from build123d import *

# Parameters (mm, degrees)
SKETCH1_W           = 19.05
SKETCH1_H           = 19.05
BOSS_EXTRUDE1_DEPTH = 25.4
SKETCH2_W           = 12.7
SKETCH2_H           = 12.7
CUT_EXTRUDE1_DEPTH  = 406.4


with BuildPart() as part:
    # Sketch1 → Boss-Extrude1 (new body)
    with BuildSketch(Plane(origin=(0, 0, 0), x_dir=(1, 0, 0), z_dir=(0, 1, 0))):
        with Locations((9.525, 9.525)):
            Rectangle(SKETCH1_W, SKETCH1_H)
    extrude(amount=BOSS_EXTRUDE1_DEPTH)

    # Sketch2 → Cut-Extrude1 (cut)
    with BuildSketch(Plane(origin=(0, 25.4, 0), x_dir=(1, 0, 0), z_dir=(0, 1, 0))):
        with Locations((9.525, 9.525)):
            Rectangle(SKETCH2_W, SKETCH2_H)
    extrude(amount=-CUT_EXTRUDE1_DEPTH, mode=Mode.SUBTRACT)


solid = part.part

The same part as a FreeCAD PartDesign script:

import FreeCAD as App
import Part
import Sketcher
from FreeCAD import Vector
Q = App.Units.Quantity


def add_polygon(sketch, points):
    """Adds a closed chain of lines whose ends are joined by coincident constraints."""
    first, n = sketch.GeometryCount, len(points)
    for a, b in zip(points, points[1:] + points[:1]):
        sketch.addGeometry(Part.LineSegment(App.Vector(*a, 0), App.Vector(*b, 0)), False)
    for i in range(n):
        sketch.addConstraint(Sketcher.Constraint("Coincident", first + i, 2, first + (i + 1) % n, 1))

doc = App.newDocument("Part")
body = doc.addObject("PartDesign::Body", "Body")

sketch1 = body.newObject("Sketcher::SketchObject", "Sketch")
sketch1.AttachmentSupport = (doc.getObject("XZ_Plane"), [""])
sketch1.MapMode = "FlatFace"
add_polygon(sketch1, [(0, -19), (0, 0), (19, 0), (19, -19)])
sketch1.addConstraint(Sketcher.Constraint("Vertical", 0))
sketch1.addConstraint(Sketcher.Constraint("Horizontal", 1))
sketch1.addConstraint(Sketcher.Constraint("Vertical", 2))
sketch1.addConstraint(Sketcher.Constraint("Horizontal", 3))
sketch1.addConstraint(Sketcher.Constraint("Coincident", 0, 2, -1, 1))
sketch1.addConstraint(Sketcher.Constraint("Equal", 3, 0))
sketch1.addConstraint(Sketcher.Constraint("DistanceX", 1, 1, 1, 2, Q("0.75 in")))
pad1 = body.newObject("PartDesign::Pad", "Pad")
pad1.Profile = sketch1
pad1.Length = Q("1 in")
pad1.Reversed = True

sketch2 = body.newObject("Sketcher::SketchObject", "Sketch001")
sketch2.AttachmentSupport = (doc.getObject("XZ_Plane"), [""])
sketch2.MapMode = "FlatFace"
sketch2.AttachmentOffset = App.Placement(Vector(0, 0, -1 * 25.4), App.Rotation())
add_polygon(sketch2, [(3, -16), (3, -3), (16, -3), (16, -16)])
sketch2.addConstraint(Sketcher.Constraint("Vertical", 0))
sketch2.addConstraint(Sketcher.Constraint("Horizontal", 1))
sketch2.addConstraint(Sketcher.Constraint("Vertical", 2))
sketch2.addConstraint(Sketcher.Constraint("Horizontal", 3))
sketch2.addConstraint(Sketcher.Constraint("Equal", 3, 0))
sketch2.addConstraint(Sketcher.Constraint("DistanceX", 1, 1, 1, 2, Q("0.5 in")))
sketch2.addConstraint(Sketcher.Constraint("DistanceX", -1, 1, 0, 2, Q("0.125 in")))
sketch2.addConstraint(Sketcher.Constraint("DistanceY", 0, 2, -1, 1, Q("0.125 in")))
pocket1 = body.newObject("PartDesign::Pocket", "Pocket")
pocket1.Profile = sketch2
pocket1.Length = Q("16 in")
pocket1.Reversed = True

doc.recompute()
